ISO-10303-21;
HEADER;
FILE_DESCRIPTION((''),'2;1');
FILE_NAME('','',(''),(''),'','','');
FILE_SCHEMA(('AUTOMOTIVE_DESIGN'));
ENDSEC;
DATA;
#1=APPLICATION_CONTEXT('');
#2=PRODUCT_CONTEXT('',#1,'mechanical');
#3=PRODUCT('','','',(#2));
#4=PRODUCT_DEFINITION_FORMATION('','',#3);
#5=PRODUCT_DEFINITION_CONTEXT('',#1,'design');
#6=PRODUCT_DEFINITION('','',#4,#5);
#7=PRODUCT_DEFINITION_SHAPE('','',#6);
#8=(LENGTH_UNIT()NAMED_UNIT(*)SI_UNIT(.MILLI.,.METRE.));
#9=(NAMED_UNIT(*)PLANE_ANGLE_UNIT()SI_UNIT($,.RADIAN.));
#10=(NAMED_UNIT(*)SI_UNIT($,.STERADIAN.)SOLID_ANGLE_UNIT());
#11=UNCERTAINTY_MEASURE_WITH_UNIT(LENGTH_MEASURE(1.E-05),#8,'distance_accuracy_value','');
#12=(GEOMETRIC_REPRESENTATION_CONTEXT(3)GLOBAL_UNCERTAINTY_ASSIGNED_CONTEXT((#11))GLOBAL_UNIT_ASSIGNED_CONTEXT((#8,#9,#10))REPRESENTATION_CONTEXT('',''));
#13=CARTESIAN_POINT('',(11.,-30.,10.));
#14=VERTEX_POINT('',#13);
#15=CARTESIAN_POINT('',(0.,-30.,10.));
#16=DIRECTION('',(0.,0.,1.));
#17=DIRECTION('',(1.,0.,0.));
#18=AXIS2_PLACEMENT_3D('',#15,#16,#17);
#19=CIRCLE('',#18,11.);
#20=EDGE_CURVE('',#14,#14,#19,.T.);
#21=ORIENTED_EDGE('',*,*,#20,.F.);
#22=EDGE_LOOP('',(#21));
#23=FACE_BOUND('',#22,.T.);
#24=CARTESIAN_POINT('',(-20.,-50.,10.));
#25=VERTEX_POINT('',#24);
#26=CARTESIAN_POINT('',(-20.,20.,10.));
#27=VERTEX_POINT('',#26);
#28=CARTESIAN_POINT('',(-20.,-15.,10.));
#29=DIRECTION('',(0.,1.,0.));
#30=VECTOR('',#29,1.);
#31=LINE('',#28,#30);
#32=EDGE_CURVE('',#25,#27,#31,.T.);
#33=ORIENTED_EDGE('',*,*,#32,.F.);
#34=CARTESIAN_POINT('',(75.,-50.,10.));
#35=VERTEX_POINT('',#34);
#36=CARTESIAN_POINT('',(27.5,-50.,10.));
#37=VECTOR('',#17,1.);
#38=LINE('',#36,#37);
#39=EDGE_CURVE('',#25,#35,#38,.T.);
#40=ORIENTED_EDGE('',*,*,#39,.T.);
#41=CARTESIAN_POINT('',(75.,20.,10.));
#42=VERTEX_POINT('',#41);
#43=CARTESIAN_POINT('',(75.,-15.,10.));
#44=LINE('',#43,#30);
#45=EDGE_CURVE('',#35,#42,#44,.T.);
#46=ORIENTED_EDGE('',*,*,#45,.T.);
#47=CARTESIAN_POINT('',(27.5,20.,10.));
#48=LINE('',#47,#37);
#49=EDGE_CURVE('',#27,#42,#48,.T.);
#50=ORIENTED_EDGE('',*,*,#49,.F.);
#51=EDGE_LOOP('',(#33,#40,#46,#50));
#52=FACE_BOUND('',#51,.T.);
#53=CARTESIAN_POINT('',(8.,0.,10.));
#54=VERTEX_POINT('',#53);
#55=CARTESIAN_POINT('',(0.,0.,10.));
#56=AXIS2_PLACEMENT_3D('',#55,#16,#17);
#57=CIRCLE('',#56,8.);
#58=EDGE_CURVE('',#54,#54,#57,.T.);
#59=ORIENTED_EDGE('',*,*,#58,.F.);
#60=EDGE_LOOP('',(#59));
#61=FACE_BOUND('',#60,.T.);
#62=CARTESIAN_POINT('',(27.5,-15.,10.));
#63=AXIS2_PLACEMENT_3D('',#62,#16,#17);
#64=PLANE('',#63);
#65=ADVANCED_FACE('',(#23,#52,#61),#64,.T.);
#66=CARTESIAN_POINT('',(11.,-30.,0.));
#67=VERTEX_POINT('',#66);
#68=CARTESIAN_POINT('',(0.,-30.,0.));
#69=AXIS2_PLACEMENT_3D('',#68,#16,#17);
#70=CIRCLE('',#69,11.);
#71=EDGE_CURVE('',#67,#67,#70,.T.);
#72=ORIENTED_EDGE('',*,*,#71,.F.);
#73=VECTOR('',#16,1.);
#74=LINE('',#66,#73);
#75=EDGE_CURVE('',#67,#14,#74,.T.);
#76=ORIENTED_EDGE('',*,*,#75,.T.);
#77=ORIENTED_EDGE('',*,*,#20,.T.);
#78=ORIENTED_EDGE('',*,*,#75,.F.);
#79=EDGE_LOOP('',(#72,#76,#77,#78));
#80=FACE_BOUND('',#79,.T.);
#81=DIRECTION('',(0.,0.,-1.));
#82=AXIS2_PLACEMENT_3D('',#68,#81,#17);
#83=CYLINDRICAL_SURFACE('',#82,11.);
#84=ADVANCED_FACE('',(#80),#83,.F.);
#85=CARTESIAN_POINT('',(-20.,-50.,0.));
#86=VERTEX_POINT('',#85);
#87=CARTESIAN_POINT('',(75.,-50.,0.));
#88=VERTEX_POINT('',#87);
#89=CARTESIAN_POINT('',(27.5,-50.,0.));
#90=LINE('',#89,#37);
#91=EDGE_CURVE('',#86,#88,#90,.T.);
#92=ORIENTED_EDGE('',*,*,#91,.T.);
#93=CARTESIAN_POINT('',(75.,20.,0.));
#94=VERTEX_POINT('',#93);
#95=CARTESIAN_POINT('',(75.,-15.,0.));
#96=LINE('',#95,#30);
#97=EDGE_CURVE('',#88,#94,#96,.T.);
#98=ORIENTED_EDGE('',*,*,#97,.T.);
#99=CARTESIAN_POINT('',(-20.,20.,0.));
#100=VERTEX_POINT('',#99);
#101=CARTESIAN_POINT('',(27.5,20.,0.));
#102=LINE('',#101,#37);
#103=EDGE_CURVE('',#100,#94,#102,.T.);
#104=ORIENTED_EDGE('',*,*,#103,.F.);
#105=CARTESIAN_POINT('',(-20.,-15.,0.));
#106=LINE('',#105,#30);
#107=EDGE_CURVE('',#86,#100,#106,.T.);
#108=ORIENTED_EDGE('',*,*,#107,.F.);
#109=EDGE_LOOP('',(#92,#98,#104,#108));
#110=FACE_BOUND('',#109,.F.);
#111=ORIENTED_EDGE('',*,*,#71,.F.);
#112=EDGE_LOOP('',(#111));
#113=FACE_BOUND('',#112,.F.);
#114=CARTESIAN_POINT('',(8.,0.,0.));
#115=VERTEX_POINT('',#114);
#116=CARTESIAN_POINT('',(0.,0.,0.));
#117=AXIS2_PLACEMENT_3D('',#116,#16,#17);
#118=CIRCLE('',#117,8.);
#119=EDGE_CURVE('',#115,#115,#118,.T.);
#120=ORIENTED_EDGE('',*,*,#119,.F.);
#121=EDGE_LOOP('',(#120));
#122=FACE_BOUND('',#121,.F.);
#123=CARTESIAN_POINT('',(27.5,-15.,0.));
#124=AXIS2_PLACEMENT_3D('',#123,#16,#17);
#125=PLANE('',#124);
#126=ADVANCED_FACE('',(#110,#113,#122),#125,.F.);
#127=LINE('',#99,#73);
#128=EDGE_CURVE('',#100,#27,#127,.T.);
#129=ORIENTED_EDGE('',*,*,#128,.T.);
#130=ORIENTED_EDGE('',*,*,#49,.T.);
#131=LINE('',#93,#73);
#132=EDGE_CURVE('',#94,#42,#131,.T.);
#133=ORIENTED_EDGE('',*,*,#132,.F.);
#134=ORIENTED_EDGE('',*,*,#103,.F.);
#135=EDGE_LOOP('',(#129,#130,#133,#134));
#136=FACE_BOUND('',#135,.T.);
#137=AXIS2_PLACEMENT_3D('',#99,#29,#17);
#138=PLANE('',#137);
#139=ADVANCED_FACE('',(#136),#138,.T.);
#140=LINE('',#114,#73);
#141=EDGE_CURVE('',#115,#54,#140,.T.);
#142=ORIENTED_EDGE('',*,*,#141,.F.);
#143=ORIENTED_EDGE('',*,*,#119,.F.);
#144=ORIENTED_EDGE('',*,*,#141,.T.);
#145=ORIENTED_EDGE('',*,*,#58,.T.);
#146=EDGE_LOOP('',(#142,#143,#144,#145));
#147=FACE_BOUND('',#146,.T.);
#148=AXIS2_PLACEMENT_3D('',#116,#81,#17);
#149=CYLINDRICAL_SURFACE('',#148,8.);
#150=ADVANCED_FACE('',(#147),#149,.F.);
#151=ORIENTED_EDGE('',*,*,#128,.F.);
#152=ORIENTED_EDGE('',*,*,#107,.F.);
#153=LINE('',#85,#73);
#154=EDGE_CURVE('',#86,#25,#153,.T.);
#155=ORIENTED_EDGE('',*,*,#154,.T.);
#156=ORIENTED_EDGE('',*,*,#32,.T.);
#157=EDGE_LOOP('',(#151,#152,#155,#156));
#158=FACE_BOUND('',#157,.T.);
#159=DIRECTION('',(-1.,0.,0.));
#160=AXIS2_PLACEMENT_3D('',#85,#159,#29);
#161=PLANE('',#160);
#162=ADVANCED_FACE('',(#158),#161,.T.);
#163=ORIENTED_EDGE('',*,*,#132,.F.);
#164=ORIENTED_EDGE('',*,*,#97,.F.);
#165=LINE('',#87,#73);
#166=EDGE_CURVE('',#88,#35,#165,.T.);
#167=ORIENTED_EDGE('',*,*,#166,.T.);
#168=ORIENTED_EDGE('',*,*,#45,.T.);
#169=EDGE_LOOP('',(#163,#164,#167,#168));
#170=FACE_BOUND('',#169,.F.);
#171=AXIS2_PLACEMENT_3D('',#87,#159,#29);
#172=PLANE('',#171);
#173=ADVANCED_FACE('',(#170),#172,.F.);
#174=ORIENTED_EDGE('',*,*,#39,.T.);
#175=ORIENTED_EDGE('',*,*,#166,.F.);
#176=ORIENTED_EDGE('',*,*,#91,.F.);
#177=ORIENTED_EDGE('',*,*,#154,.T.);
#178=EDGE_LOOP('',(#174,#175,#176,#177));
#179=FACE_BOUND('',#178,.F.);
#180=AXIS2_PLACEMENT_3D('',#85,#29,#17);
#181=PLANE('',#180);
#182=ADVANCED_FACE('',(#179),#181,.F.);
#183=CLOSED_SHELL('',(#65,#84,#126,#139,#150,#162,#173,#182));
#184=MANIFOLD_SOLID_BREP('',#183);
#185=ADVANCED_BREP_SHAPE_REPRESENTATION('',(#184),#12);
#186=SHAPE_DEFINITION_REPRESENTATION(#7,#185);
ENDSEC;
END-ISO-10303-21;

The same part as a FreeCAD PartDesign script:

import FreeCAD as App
import Part
import Sketcher

V = App.Vector


def add_polygon(sketch, points):
    """Adds a closed chain of lines whose ends are joined by coincident constraints."""
    first, n = sketch.GeometryCount, len(points)
    for a, b in zip(points, points[1:] + points[:1]):
        sketch.addGeometry(Part.LineSegment(App.Vector(*a, 0), App.Vector(*b, 0)), False)
    for i in range(n):
        sketch.addConstraint(Sketcher.Constraint("Coincident", first + i, 2, first + (i + 1) % n, 1))

doc = App.newDocument("Part")
params = doc.addObject("Spreadsheet::Sheet", "Params")
for row, (alias, value) in enumerate([
    ("sketch1_diameter", "22 mm"),
    ("sketch1_diameter2", "16 mm"),
    ("sketch1_width", "95 mm"),
    ("sketch1_height", "70 mm"),
    ("pad1_length", "10 mm"),
], start=1):
    params.set(f"A{row}", alias)
    params.set(f"B{row}", "=" + value)
    params.setAlias(f"B{row}", alias)

body = doc.addObject("PartDesign::Body", "Body")

# Sketch on XY plane
sketch1 = body.newObject("Sketcher::SketchObject", "Sketch")
sketch1.AttachmentSupport = (doc.getObject("XY_Plane"), [""])
sketch1.MapMode = "FlatFace"
add_polygon(sketch1, [(-20, 20), (-20, -50), (75, -50), (75, 20)])  # lines 0-3
sketch1.addGeometry(Part.Circle(V(0, -30, 0), V(0, 0, 1), 11), False)  # 4
sketch1.addGeometry(Part.Circle(V(0, 0, 0), V(0, 0, 1), 8), False)  # 5
sketch1.addConstraint([
    Sketcher.Constraint("Vertical", 0),
    Sketcher.Constraint("Horizontal", 1),
    Sketcher.Constraint("Vertical", 2),
    Sketcher.Constraint("Horizontal", 3),
    Sketcher.Constraint("Coincident", 5, 3, -1, 1),
    Sketcher.Constraint("PointOnObject", 4, 3, -2),
    Sketcher.Constraint("Diameter", 4, 22.0),
    Sketcher.Constraint("Diameter", 5, 16.0),
    Sketcher.Constraint("DistanceX", 1, 1, 1, 2, 95.0),
    Sketcher.Constraint("DistanceY", 0, 2, 0, 1, 70.0),
    Sketcher.Constraint("DistanceY", 4, 3, -1, 1, 30.0),
    Sketcher.Constraint("DistanceX", 0, 2, -1, 1, 20.0),
    Sketcher.Constraint("DistanceY", 0, 2, -1, 1, 50.0),
])
sketch1.setExpression("Constraints[10]", "Params.sketch1_diameter")
sketch1.setExpression("Constraints[11]", "Params.sketch1_diameter2")
sketch1.setExpression("Constraints[12]", "Params.sketch1_width")
sketch1.setExpression("Constraints[13]", "Params.sketch1_height")
pad1 = body.newObject("PartDesign::Pad", "Pad")
pad1.Profile = sketch1
pad1.setExpression("Length", "Params.pad1_length")

doc.recompute()
